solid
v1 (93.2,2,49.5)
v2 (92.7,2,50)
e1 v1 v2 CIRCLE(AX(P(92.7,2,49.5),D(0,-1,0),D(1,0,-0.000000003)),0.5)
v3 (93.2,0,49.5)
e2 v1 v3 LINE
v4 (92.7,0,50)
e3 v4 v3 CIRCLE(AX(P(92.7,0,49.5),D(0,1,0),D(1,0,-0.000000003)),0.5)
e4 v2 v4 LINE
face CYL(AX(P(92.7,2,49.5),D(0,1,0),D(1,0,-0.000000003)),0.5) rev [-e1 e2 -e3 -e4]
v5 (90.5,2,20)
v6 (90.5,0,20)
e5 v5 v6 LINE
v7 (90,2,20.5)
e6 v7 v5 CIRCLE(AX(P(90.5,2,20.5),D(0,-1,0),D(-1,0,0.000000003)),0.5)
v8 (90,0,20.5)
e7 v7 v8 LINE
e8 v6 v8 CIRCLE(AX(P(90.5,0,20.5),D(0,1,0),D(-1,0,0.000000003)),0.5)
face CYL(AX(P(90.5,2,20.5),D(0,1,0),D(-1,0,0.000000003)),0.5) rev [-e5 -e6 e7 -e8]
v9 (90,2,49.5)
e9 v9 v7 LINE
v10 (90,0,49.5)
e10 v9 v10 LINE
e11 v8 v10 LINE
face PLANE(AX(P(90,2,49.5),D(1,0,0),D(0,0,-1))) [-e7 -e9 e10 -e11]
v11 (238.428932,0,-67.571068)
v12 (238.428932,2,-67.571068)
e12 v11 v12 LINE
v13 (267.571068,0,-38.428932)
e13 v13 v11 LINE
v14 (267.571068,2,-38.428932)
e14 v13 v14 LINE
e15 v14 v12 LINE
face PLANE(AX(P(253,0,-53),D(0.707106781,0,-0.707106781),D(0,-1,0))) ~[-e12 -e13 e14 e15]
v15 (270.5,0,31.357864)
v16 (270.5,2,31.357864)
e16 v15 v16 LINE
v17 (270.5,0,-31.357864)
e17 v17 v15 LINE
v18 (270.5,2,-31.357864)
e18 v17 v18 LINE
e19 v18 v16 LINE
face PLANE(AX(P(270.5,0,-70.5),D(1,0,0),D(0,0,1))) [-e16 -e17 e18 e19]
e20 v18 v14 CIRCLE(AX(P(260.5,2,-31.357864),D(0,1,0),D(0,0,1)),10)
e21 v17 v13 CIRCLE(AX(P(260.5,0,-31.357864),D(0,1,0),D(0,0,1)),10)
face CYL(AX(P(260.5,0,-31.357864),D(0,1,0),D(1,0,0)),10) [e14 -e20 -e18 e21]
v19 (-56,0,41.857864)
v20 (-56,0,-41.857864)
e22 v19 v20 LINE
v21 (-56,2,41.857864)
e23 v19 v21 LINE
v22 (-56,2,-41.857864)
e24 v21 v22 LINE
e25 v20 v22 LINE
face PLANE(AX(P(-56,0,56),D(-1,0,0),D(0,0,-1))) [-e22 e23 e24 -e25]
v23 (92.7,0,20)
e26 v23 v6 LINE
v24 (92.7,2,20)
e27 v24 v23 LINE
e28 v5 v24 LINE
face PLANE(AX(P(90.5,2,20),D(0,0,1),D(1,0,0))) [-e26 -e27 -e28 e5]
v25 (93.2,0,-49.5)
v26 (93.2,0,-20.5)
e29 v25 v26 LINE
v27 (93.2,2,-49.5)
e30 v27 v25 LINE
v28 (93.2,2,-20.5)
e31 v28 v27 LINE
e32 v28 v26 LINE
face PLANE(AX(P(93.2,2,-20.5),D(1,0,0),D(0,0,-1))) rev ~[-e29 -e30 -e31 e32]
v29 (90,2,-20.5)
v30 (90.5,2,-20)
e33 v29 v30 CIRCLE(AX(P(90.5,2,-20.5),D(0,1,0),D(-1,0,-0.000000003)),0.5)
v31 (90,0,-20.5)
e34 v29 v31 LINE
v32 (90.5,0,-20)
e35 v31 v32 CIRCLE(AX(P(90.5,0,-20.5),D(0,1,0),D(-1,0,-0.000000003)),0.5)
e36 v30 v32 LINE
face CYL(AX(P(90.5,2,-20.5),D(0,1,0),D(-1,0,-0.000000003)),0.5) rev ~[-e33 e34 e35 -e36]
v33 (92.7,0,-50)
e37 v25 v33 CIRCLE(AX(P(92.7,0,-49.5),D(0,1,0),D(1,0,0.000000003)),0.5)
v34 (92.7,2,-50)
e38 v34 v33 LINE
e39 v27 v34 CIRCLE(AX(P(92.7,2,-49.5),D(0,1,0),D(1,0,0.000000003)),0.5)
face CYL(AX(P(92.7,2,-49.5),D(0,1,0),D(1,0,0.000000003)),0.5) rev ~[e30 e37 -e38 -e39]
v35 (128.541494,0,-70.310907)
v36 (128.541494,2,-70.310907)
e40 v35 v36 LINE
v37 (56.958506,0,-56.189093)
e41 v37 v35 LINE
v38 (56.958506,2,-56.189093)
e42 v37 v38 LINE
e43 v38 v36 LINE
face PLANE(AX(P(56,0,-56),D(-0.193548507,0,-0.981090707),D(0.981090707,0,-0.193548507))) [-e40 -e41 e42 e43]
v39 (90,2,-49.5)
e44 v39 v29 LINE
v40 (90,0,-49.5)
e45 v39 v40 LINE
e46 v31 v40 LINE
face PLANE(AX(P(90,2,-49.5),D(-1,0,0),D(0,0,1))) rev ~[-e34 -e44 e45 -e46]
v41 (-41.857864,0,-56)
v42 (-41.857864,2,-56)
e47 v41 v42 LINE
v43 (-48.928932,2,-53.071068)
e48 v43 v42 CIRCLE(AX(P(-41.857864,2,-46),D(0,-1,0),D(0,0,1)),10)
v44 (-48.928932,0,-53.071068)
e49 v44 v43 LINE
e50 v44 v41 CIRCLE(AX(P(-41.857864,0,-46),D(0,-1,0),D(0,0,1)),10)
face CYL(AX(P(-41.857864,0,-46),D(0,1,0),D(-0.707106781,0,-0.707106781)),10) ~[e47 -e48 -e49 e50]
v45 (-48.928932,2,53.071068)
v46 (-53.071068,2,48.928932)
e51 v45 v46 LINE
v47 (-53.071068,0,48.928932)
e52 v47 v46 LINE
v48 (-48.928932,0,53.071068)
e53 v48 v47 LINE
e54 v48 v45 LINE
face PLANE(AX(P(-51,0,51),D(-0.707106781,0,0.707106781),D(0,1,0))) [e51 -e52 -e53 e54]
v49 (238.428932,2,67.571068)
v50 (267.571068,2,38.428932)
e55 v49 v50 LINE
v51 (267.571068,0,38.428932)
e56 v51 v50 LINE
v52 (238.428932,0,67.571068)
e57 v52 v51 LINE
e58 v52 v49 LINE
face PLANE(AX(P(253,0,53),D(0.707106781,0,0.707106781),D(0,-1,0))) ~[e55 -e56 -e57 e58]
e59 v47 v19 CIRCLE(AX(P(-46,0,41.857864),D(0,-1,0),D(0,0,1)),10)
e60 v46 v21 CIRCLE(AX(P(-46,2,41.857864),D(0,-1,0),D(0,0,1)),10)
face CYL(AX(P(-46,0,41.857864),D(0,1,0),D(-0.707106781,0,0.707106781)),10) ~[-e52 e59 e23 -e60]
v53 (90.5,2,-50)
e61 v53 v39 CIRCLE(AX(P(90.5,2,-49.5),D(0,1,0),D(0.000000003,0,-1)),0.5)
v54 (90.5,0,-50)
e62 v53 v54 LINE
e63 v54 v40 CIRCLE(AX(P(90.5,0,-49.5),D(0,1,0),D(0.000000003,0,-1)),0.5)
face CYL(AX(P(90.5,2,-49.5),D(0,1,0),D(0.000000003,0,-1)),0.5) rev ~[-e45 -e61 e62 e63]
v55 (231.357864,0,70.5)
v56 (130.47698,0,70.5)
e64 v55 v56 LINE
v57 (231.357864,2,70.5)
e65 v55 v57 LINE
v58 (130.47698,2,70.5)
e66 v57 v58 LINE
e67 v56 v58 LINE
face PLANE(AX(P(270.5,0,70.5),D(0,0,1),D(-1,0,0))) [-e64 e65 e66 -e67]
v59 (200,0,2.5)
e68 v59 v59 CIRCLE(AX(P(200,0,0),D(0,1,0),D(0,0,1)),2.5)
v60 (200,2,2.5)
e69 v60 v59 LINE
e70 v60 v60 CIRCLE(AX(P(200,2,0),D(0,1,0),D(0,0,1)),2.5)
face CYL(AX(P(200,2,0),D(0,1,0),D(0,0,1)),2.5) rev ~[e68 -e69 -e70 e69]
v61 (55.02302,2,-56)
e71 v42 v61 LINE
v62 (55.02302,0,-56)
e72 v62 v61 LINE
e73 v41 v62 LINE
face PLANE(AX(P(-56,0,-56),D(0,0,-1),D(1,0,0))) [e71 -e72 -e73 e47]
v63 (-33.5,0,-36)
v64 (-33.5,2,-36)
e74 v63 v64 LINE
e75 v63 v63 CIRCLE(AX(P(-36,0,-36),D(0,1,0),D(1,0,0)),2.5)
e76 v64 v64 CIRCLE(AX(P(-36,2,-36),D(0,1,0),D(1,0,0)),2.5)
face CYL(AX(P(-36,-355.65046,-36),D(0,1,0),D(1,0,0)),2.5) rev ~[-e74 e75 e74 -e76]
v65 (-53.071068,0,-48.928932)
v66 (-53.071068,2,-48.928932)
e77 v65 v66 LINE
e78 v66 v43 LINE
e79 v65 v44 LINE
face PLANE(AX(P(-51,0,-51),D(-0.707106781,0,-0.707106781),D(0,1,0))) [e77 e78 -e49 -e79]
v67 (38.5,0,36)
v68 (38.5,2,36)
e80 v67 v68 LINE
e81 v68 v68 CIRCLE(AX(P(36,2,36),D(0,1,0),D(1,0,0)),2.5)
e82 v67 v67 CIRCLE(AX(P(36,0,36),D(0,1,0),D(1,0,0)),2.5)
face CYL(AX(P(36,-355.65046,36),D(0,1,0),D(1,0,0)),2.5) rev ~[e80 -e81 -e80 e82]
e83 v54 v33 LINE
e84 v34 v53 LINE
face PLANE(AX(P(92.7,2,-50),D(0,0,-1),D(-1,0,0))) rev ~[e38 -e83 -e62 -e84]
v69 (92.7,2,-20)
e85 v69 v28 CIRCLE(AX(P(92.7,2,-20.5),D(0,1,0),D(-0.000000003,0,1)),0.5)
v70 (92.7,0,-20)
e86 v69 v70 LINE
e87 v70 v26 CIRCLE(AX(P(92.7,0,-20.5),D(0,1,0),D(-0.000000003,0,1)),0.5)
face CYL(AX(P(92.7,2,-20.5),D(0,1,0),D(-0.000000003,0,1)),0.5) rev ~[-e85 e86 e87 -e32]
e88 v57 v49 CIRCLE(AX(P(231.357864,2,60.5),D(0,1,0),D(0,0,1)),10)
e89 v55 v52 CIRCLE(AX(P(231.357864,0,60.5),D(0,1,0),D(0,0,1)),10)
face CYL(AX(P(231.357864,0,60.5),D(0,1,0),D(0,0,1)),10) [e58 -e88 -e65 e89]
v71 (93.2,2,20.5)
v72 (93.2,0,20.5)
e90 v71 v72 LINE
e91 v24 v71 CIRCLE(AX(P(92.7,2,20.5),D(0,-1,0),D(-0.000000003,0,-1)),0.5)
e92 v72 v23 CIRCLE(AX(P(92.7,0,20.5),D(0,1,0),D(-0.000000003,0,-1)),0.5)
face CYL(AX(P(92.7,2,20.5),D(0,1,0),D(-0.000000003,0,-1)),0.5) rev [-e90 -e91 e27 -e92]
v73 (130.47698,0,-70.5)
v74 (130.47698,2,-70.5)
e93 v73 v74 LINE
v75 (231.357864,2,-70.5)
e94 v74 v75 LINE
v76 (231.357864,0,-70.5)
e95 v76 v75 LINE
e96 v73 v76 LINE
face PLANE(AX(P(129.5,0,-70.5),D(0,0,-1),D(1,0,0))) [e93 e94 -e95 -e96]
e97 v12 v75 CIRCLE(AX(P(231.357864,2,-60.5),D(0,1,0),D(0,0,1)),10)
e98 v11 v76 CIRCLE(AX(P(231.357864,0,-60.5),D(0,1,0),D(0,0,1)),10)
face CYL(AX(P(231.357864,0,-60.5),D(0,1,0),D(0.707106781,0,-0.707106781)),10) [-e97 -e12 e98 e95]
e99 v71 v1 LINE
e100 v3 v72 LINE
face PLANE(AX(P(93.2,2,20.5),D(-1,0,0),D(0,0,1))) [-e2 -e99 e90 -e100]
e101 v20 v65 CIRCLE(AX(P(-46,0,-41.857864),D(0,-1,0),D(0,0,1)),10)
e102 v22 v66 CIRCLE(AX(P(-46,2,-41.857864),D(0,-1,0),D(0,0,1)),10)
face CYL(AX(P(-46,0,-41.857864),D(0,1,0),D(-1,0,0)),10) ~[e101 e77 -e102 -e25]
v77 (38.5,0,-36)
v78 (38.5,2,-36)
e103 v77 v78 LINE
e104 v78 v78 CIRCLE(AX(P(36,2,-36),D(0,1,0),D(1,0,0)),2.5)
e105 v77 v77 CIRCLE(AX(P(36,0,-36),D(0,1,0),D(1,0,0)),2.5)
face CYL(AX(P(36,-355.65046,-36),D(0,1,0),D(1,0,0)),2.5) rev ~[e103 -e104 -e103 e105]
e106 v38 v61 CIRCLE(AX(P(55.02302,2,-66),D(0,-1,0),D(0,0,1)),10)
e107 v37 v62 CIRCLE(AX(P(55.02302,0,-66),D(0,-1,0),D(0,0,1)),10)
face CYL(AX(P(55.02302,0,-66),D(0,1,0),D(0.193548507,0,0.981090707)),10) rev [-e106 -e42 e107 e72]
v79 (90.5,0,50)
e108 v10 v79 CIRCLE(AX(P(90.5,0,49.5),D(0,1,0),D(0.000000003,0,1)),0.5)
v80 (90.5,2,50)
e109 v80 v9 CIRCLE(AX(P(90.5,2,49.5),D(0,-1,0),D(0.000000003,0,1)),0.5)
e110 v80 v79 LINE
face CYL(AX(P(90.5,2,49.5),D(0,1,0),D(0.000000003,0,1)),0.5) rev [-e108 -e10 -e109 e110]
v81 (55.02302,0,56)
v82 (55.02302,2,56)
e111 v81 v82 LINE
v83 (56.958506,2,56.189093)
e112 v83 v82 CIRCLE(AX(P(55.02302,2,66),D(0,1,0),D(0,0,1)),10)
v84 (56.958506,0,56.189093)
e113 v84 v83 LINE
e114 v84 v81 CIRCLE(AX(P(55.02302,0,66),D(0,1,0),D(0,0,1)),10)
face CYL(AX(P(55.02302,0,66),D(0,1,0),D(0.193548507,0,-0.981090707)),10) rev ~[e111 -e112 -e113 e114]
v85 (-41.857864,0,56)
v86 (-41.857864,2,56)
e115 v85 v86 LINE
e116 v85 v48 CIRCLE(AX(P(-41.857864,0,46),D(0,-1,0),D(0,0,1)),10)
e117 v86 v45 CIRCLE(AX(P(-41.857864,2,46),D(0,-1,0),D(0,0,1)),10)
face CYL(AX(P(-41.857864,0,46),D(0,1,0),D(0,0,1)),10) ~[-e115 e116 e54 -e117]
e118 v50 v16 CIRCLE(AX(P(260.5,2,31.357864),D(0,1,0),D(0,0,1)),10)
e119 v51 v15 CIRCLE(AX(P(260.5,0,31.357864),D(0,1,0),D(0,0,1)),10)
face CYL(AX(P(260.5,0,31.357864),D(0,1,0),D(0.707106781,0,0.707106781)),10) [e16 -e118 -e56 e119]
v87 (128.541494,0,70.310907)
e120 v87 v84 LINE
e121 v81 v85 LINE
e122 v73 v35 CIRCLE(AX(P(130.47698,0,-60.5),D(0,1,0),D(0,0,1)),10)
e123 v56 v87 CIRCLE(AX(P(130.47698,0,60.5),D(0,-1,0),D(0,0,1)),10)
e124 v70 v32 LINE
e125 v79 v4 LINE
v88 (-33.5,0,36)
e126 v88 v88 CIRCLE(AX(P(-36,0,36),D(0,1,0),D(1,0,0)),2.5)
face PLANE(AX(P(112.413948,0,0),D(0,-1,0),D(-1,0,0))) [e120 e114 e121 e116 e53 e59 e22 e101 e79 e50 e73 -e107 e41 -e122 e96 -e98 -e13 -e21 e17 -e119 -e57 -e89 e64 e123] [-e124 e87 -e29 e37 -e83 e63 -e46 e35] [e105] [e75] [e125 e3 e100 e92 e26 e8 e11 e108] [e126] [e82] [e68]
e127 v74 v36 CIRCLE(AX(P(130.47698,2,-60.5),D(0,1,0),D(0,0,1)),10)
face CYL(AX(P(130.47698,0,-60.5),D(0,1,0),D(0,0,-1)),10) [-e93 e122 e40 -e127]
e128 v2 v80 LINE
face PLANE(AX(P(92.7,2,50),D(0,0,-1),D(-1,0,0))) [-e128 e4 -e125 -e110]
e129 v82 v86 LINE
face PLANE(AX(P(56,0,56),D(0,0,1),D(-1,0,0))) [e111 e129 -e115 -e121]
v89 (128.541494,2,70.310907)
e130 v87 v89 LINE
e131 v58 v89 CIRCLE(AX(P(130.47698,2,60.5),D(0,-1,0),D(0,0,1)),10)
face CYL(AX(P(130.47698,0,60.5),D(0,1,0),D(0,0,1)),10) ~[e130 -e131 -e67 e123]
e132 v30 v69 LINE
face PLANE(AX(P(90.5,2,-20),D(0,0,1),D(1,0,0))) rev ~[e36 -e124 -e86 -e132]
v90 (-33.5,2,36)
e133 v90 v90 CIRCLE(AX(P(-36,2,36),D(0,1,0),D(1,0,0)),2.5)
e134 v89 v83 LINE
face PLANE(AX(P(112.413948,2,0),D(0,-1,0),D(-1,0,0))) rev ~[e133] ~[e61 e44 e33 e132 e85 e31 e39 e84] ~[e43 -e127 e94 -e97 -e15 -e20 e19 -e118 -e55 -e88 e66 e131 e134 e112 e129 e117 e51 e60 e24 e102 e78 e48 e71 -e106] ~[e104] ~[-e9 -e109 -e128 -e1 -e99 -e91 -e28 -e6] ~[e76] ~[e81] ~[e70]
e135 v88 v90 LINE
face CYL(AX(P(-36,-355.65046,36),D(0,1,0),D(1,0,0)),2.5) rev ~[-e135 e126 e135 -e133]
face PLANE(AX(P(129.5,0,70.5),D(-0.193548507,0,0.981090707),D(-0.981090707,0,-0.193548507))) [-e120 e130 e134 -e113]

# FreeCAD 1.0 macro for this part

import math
import FreeCAD as App
import Part
import Sketcher
Q = App.Units.Quantity


def edges_at(feature, points):
    """Names of the edges that pass closest to the given points."""
    edges = feature.Shape.Edges
    near = lambda p: min(range(len(edges)), key=lambda i: edges[i].distToShape(Part.Vertex(*p))[0])
    return sorted({f"Edge{near(p) + 1}" for p in points})


def add_polygon(sketch, points):
    """Adds a closed chain of lines whose ends are joined by coincident constraints."""
    first, n = sketch.GeometryCount, len(points)
    for a, b in zip(points, points[1:] + points[:1]):
        sketch.addGeometry(Part.LineSegment(App.Vector(*a, 0), App.Vector(*b, 0)), False)
    for i in range(n):
        sketch.addConstraint(Sketcher.Constraint("Coincident", first + i, 2, first + (i + 1) % n, 1))

doc = App.newDocument("Part")
body = doc.addObject("PartDesign::Body", "Body")

# Sketch on XZ plane
sketch1 = body.newObject("Sketcher::SketchObject", "Sketch")
sketch1.AttachmentSupport = (doc.getObject("XZ_Plane"), [""])
sketch1.MapMode = "FlatFace"
add_polygon(sketch1, [(130, -70), (56, -56), (-56, -56), (-56, 56), (56, 56), (130, 70), (270, 70), (270, -70)])  # lines 0-7
sketch1.addConstraint(Sketcher.Constraint("Horizontal", 1))
sketch1.addConstraint(Sketcher.Constraint("Vertical", 2))
sketch1.addConstraint(Sketcher.Constraint("Horizontal", 3))
sketch1.addConstraint(Sketcher.Constraint("Horizontal", 5))
sketch1.addConstraint(Sketcher.Constraint("Vertical", 6))
sketch1.addConstraint(Sketcher.Constraint("Horizontal", 7))
sketch1.addConstraint(Sketcher.Constraint("Symmetric", 0, 2, 2, 2, -1, 1))
sketch1.addConstraint(Sketcher.Constraint("Symmetric", 4, 2, 7, 2, -1))
sketch1.addConstraint(Sketcher.Constraint("Vertical", 0, 2, 3, 2))
sketch1.addConstraint(Sketcher.Constraint("Equal", 3, 2))
sketch1.addConstraint(Sketcher.Constraint("Equal", 7, 6))
sketch1.addConstraint(Sketcher.Constraint("DistanceX", 1, 2, 1, 1, Q("112 mm")))
sketch1.addConstraint(Sketcher.Constraint("DistanceX", 5, 1, 5, 2, Q("141 mm")))
sketch1.addConstraint(Sketcher.Constraint("DistanceX", -1, 1, 4, 2, Q("129.5 mm")))
pad1 = body.newObject("PartDesign::Pad", "Pad")
pad1.Profile = sketch1
pad1.Length = 2
pad1.Reversed = True
doc.recompute()

chamfer = body.newObject("PartDesign::Chamfer", "Chamfer")
chamfer.Base = (pad1, edges_at(pad1, [(-56, 1, 56), (-56, 1, -56)]))
chamfer.Size = 10
doc.recompute()

chamfer2 = body.newObject("PartDesign::Chamfer", "Chamfer001")
chamfer2.Base = (chamfer, edges_at(chamfer, [(270.5, 1, 70.5), (270.5, 1, -70.5)]))
chamfer2.Size = 35
doc.recompute()

fillet = body.newObject("PartDesign::Fillet", "Fillet")
fillet.Base = (chamfer2, edges_at(chamfer2, [
    (129.5, 1, 70.5),
    (56, 1, 56),
    (56, 1, -56),
    (129.5, 1, -70.5),
    (-56, 1, 46),
    (-56, 1, -46),
    (-46, 1, -56),
    (-46, 1, 56),
    (235.5, 1, -70.5),
    (270.5, 1, 35.5),
    (270.5, 1, -35.5),
    (235.5, 1, 70.5),
]))
fillet.Radius = 10

# Sketch on XZ plane
sketch2 = body.newObject("Sketcher::SketchObject", "Sketch001")
sketch2.AttachmentSupport = (doc.getObject("XZ_Plane"), [""])
sketch2.MapMode = "FlatFace"
sketch2.addGeometry(Part.Circle(App.Vector(-36, 36, 0), App.Vector(0, 0, 1), 2.5), False)
sketch2.addGeometry(Part.Circle(App.Vector(36, 36, 0), App.Vector(0, 0, 1), 2.5), False)
sketch2.addGeometry(Part.Circle(App.Vector(-36, -36, 0), App.Vector(0, 0, 1), 2.5), False)
sketch2.addGeometry(Part.Circle(App.Vector(36, -36, 0), App.Vector(0, 0, 1), 2.5), False)
sketch2.addConstraint(Sketcher.Constraint("Equal", 0, 1))
sketch2.addConstraint(Sketcher.Constraint("Equal", 1, 2))
sketch2.addConstraint(Sketcher.Constraint("Equal", 2, 3))
sketch2.addConstraint(Sketcher.Constraint("Symmetric", 1, 3, 2, 3, -1, 1))
sketch2.addConstraint(Sketcher.Constraint("Symmetric", 0, 3, 3, 3, -1, 1))
sketch2.addConstraint(Sketcher.Constraint("Symmetric", 0, 3, 1, 3, -2))
sketch2.addConstraint(Sketcher.Constraint("Diameter", 0, Q("5 mm")))
sketch2.addConstraint(Sketcher.Constraint("DistanceX", 0, 3, -1, 1, Q("36 mm")))
sketch2.addConstraint(Sketcher.Constraint("DistanceY", -1, 1, 0, 3, Q("36 mm")))
doc.recompute()
hole = body.newObject("PartDesign::Hole", "Hole")
hole.Profile = sketch2
hole.ThreadType = "None"
hole.Diameter = 5
hole.DepthType = "ThroughAll"

# Sketch on XZ plane
sketch3 = body.newObject("Sketcher::SketchObject", "Sketch002")
sketch3.AttachmentSupport = (doc.getObject("XZ_Plane"), [""])
sketch3.MapMode = "FlatFace"
sketch3.AttachmentOffset = App.Placement(App.Vector(0, 0, -2), App.Rotation())
sketch3.addGeometry(Part.Circle(App.Vector(200, 0, 0), App.Vector(0, 0, 1), 2.5), False)
sketch3.addConstraint(Sketcher.Constraint("PointOnObject", 0, 3, -1))
sketch3.addConstraint(Sketcher.Constraint("Diameter", 0, Q("5 mm")))
sketch3.addConstraint(Sketcher.Constraint("DistanceX", -1, 1, 0, 3, Q("200 mm")))
pocket1 = body.newObject("PartDesign::Pocket", "Pocket")
pocket1.Profile = sketch3
pocket1.Type = "ThroughAll"
pocket1.Reversed = True

# Sketch on XZ plane
sketch4 = body.newObject("Sketcher::SketchObject", "Sketch003")
sketch4.AttachmentSupport = (doc.getObject("XZ_Plane"), [""])
sketch4.MapMode = "FlatFace"
sketch4.AttachmentOffset = App.Placement(App.Vector(0, 0, -2), App.Rotation())
sketch4.addGeometry(Part.LineSegment(App.Vector(93.2, -20.5, 0), App.Vector(93.2, -49.5, 0)), False)
sketch4.addGeometry(Part.ArcOfCircle(Part.Circle(App.Vector(92.7, -49.5, 0), App.Vector(0, 0, 1), 0.5), math.radians(-90), math.radians(0)), False)
sketch4.addGeometry(Part.LineSegment(App.Vector(92.7, -50, 0), App.Vector(90.5, -50, 0)), False)
sketch4.addGeometry(Part.ArcOfCircle(Part.Circle(App.Vector(90.5, -49.5, 0), App.Vector(0, 0, 1), 0.5), math.radians(180), math.radians(270)), False)
sketch4.addGeometry(Part.LineSegment(App.Vector(90, -49.5, 0), App.Vector(90, -20.5, 0)), False)
sketch4.addGeometry(Part.ArcOfCircle(Part.Circle(App.Vector(90.5, -20.5, 0), App.Vector(0, 0, 1), 0.5), math.radians(90), math.radians(180)), False)
sketch4.addGeometry(Part.LineSegment(App.Vector(90.5, -20, 0), App.Vector(92.7, -20, 0)), False)
sketch4.addGeometry(Part.ArcOfCircle(Part.Circle(App.Vector(92.7, -20.5, 0), App.Vector(0, 0, 1), 0.5), math.radians(0), math.radians(90)), False)
sketch4.addGeometry(Part.LineSegment(App.Vector(92.7, 20, 0), App.Vector(90.5, 20, 0)), False)
sketch4.addGeometry(Part.ArcOfCircle(Part.Circle(App.Vector(90.5, 20.5, 0), App.Vector(0, 0, 1), 0.5), math.radians(180), math.radians(270)), False)
sketch4.addGeometry(Part.LineSegment(App.Vector(90, 20.5, 0), App.Vector(90, 49.5, 0)), False)
sketch4.addGeometry(Part.ArcOfCircle(Part.Circle(App.Vector(90.5, 49.5, 0), App.Vector(0, 0, 1), 0.5), math.radians(90), math.radians(180)), False)
sketch4.addGeometry(Part.LineSegment(App.Vector(90.5, 50, 0), App.Vector(92.7, 50, 0)), False)
sketch4.addGeometry(Part.ArcOfCircle(Part.Circle(App.Vector(92.7, 49.5, 0), App.Vector(0, 0, 1), 0.5), math.radians(0), math.radians(90)), False)
sketch4.addGeometry(Part.LineSegment(App.Vector(93.2, 49.5, 0), App.Vector(93.2, 20.5, 0)), False)
sketch4.addGeometry(Part.ArcOfCircle(Part.Circle(App.Vector(92.7, 20.5, 0), App.Vector(0, 0, 1), 0.5), math.radians(-90), math.radians(0)), False)
sketch4.addConstraint(Sketcher.Constraint("Tangent", 0, 2, 1, 2))
sketch4.addConstraint(Sketcher.Constraint("Tangent", 1, 1, 2, 1))
sketch4.addConstraint(Sketcher.Constraint("Tangent", 2, 2, 3, 2))
sketch4.addConstraint(Sketcher.Constraint("Tangent", 3, 1, 4, 1))
sketch4.addConstraint(Sketcher.Constraint("Tangent", 4, 2, 5, 2))
sketch4.addConstraint(Sketcher.Constraint("Tangent", 5, 1, 6, 1))
sketch4.addConstraint(Sketcher.Constraint("Tangent", 6, 2, 7, 2))
sketch4.addConstraint(Sketcher.Constraint("Tangent", 7, 1, 0, 1))
sketch4.addConstraint(Sketcher.Constraint("Tangent", 8, 2, 9, 2))
sketch4.addConstraint(Sketcher.Constraint("Tangent", 9, 1, 10, 1))
sketch4.addConstraint(Sketcher.Constraint("Tangent", 10, 2, 11, 2))
sketch4.addConstraint(Sketcher.Constraint("Tangent", 11, 1, 12, 1))
sketch4.addConstraint(Sketcher.Constraint("Tangent", 12, 2, 13, 2))
sketch4.addConstraint(Sketcher.Constraint("Tangent", 13, 1, 14, 1))
sketch4.addConstraint(Sketcher.Constraint("Tangent", 14, 2, 15, 2))
sketch4.addConstraint(Sketcher.Constraint("Tangent", 15, 1, 8, 1))
sketch4.addConstraint(Sketcher.Constraint("Vertical", 0))
sketch4.addConstraint(Sketcher.Constraint("Horizontal", 2))
sketch4.addConstraint(Sketcher.Constraint("Vertical", 4))
sketch4.addConstraint(Sketcher.Constraint("Horizontal", 6))
sketch4.addConstraint(Sketcher.Constraint("Horizontal", 8))
sketch4.addConstraint(Sketcher.Constraint("Vertical", 10))
sketch4.addConstraint(Sketcher.Constraint("Horizontal", 12))
sketch4.addConstraint(Sketcher.Constraint("Vertical", 14))
sketch4.addConstraint(Sketcher.Constraint("Equal", 1, 3))
sketch4.addConstraint(Sketcher.Constraint("Equal", 3, 5))
sketch4.addConstraint(Sketcher.Constraint("Equal", 5, 7))
sketch4.addConstraint(Sketcher.Constraint("Equal", 7, 9))
sketch4.addConstraint(Sketcher.Constraint("Equal", 9, 11))
sketch4.addConstraint(Sketcher.Constraint("Equal", 11, 13))
sketch4.addConstraint(Sketcher.Constraint("Equal", 13, 15))
sketch4.addConstraint(Sketcher.Constraint("Symmetric", 5, 3, 9, 3, -1))
sketch4.addConstraint(Sketcher.Constraint("Symmetric", 1, 3, 13, 3, -1))
sketch4.addConstraint(Sketcher.Constraint("Radius", 1, Q("0.5 mm")))
sketch4.addConstraint(Sketcher.Constraint("DistanceY", 0, 2, 0, 1, Q("29 mm")))
sketch4.addConstraint(Sketcher.Constraint("DistanceX", 2, 2, 2, 1, Q("2.2 mm")))
sketch4.addConstraint(Sketcher.Constraint("DistanceY", 1, 1, -1, 1, Q("50 mm")))
sketch4.addConstraint(Sketcher.Constraint("DistanceX", -1, 1, 3, 1, Q("90 mm")))
pocket2 = body.newObject("PartDesign::Pocket", "Pocket001")
pocket2.Profile = sketch4
pocket2.Type = "ThroughAll"
pocket2.Reversed = True

doc.recompute()
